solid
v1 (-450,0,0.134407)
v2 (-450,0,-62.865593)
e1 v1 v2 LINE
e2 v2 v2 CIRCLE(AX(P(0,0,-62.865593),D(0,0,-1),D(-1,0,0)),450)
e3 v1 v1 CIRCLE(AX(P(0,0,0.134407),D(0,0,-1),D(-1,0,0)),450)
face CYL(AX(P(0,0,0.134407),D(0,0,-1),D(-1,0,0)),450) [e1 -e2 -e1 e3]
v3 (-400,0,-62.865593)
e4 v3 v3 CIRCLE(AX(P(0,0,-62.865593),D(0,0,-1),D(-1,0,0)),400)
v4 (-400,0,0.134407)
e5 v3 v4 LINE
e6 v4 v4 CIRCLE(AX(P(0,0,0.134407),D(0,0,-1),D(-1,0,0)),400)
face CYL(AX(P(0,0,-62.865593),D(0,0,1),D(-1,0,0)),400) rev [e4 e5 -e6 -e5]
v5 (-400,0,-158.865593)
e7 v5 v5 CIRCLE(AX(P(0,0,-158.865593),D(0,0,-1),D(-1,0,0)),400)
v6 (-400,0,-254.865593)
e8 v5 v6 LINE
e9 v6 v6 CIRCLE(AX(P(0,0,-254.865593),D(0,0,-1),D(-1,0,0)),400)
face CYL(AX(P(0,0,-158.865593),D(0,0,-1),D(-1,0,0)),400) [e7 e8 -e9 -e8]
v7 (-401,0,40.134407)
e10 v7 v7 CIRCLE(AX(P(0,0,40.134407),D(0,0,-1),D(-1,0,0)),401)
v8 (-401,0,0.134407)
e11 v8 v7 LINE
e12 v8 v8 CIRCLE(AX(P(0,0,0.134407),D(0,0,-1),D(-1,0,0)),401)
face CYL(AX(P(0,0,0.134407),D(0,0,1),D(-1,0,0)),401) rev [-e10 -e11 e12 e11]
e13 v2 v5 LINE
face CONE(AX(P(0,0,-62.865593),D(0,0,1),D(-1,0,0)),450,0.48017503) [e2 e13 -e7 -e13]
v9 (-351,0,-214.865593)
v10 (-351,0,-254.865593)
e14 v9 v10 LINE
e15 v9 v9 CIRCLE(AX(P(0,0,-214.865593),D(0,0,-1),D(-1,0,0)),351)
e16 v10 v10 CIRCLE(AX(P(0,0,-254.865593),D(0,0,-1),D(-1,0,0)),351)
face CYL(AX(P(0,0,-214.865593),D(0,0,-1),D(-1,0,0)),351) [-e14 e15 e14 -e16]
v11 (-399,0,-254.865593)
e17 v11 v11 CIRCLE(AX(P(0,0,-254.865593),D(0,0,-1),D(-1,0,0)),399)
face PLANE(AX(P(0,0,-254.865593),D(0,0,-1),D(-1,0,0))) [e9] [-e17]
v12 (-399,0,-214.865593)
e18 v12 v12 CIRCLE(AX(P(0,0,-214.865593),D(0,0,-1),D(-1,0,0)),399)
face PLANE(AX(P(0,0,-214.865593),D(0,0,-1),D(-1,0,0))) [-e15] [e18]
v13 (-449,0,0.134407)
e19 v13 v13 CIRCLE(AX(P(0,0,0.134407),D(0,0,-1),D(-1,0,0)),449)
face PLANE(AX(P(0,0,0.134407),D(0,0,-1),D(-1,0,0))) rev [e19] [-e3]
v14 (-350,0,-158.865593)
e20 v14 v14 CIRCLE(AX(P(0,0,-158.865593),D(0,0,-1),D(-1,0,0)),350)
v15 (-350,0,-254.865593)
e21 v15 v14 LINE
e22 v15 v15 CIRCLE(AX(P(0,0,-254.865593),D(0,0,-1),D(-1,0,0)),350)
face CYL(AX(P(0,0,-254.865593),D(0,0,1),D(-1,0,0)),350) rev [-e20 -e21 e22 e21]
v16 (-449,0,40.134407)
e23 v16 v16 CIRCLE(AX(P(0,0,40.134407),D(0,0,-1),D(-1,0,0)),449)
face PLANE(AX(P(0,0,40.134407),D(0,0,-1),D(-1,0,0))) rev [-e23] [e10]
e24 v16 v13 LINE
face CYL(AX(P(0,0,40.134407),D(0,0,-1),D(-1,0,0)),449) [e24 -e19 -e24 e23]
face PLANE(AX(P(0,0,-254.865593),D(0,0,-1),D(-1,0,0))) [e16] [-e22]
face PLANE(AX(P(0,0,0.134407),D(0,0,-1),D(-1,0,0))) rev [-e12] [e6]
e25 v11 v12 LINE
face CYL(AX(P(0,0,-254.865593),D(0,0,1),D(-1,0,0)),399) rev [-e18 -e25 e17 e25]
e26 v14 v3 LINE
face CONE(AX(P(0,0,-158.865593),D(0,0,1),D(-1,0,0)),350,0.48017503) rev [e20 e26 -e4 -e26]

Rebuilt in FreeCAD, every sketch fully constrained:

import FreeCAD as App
import Part
import Sketcher
from FreeCAD import Vector


def add_polygon(sketch, points):
    """Adds a closed chain of lines whose ends are joined by coincident constraints."""
    first, n = sketch.GeometryCount, len(points)
    for a, b in zip(points, points[1:] + points[:1]):
        sketch.addGeometry(Part.LineSegment(App.Vector(*a, 0), App.Vector(*b, 0)), False)
    for i in range(n):
        sketch.addConstraint(Sketcher.Constraint("Coincident", first + i, 2, first + (i + 1) % n, 1))

doc = App.newDocument("Part")
body = doc.addObject("PartDesign::Body", "Body")

sketch1 = body.newObject("Sketcher::SketchObject", "Sketch")
sketch1.AttachmentSupport = (doc.getObject("XZ_Plane"), [""])
sketch1.MapMode = "FlatFace"
add_polygon(sketch1, [(-351, -254.9), (-350, -254.9), (-350, -158.9), (-400, -62.9), (-400, 0.1), (-401, 0.1), (-401, 40.1), (-449, 40.1), (-449, 0.1), (-450, 0.1), (-450, -62.9), (-400, -158.9), (-400, -254.9), (-399, -254.9), (-399, -214.9), (-351, -214.9)])
sketch1.addConstraint([
    Sketcher.Constraint("Horizontal", 0),
    Sketcher.Constraint("Vertical", 1),
    Sketcher.Constraint("Vertical", 3),
    Sketcher.Constraint("Horizontal", 4),
    Sketcher.Constraint("Vertical", 5),
    Sketcher.Constraint("Horizontal", 6),
    Sketcher.Constraint("Vertical", 7),
    Sketcher.Constraint("Horizontal", 8),
    Sketcher.Constraint("Vertical", 9),
    Sketcher.Constraint("Vertical", 11),
    Sketcher.Constraint("Horizontal", 12),
    Sketcher.Constraint("Vertical", 13),
    Sketcher.Constraint("Horizontal", 14),
    Sketcher.Constraint("Vertical", 15),
    Sketcher.Constraint("Parallel", 2, 10),
    Sketcher.Constraint("Horizontal", 4, 2, 7, 2),
    Sketcher.Constraint("Horizontal", 2, 2, 9, 2),
    Sketcher.Constraint("Horizontal", 1, 2, 10, 2),
    Sketcher.Constraint("Horizontal", 0, 2, 11, 2),
    Sketcher.Constraint("Vertical", 3, 2, 10, 2),
    Sketcher.Constraint("Equal", 0, 4),
    Sketcher.Constraint("Equal", 4, 8),
    Sketcher.Constraint("Equal", 8, 12),
    Sketcher.Constraint("Equal", 7, 13),
    Sketcher.Constraint("DistanceX", 0, 1, 0, 2, 1.0),
    Sketcher.Constraint("DistanceX", 6, 2, 6, 1, 48.0),
    Sketcher.Constraint("DistanceY", 1, 1, 1, 2, 96.0),
    Sketcher.Constraint("DistanceY", 3, 1, 3, 2, 63.0),
    Sketcher.Constraint("DistanceY", 5, 1, 5, 2, 40.0),
    Sketcher.Constraint("DistanceX", 0, 2, -1, 1, 350.0),
    Sketcher.Constraint("DistanceY", 1, 2, 2, 2, 96.0),
    Sketcher.Constraint("DistanceY", 0, 2, -1, 1, 254.865593),
])
revolution = body.newObject("PartDesign::Revolution", "Revolution")
revolution.Profile = sketch1
revolution.ReferenceAxis = (sketch1, ["V_Axis"])
revolution.Angle = 360

doc.recompute()
